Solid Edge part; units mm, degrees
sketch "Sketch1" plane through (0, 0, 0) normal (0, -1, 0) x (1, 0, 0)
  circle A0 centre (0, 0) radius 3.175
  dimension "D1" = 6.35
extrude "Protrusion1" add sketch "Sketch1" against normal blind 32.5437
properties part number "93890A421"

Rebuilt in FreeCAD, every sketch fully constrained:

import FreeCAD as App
import Part
import Sketcher
from FreeCAD import Vector
Q = App.Units.Quantity

doc = App.newDocument("Part")
body = doc.addObject("PartDesign::Body", "Body")

# Sketch on XZ plane
sketch1 = doc.addObject("Sketcher::SketchObject", "Sketch")
body.addObject(sketch1)
sketch1.AttachmentSupport = (doc.XZ_Plane, [""])
sketch1.MapMode = "FlatFace"
sketch1.addGeometry(Part.Circle(Vector(0, 0, 0), Vector(0, 0, 1), 3.2), False)
sketch1.addConstraint(Sketcher.Constraint("Coincident", 0, 3, -1, 1))
sketch1.addConstraint(Sketcher.Constraint("Diameter", 0, Q("0.25 in")))
pad1 = doc.addObject("PartDesign::Pad", "Pad")
body.addObject(pad1)
pad1.Profile = sketch1
pad1.Length = Q("1.281248 in")
pad1.Reversed = True

doc.recompute()
